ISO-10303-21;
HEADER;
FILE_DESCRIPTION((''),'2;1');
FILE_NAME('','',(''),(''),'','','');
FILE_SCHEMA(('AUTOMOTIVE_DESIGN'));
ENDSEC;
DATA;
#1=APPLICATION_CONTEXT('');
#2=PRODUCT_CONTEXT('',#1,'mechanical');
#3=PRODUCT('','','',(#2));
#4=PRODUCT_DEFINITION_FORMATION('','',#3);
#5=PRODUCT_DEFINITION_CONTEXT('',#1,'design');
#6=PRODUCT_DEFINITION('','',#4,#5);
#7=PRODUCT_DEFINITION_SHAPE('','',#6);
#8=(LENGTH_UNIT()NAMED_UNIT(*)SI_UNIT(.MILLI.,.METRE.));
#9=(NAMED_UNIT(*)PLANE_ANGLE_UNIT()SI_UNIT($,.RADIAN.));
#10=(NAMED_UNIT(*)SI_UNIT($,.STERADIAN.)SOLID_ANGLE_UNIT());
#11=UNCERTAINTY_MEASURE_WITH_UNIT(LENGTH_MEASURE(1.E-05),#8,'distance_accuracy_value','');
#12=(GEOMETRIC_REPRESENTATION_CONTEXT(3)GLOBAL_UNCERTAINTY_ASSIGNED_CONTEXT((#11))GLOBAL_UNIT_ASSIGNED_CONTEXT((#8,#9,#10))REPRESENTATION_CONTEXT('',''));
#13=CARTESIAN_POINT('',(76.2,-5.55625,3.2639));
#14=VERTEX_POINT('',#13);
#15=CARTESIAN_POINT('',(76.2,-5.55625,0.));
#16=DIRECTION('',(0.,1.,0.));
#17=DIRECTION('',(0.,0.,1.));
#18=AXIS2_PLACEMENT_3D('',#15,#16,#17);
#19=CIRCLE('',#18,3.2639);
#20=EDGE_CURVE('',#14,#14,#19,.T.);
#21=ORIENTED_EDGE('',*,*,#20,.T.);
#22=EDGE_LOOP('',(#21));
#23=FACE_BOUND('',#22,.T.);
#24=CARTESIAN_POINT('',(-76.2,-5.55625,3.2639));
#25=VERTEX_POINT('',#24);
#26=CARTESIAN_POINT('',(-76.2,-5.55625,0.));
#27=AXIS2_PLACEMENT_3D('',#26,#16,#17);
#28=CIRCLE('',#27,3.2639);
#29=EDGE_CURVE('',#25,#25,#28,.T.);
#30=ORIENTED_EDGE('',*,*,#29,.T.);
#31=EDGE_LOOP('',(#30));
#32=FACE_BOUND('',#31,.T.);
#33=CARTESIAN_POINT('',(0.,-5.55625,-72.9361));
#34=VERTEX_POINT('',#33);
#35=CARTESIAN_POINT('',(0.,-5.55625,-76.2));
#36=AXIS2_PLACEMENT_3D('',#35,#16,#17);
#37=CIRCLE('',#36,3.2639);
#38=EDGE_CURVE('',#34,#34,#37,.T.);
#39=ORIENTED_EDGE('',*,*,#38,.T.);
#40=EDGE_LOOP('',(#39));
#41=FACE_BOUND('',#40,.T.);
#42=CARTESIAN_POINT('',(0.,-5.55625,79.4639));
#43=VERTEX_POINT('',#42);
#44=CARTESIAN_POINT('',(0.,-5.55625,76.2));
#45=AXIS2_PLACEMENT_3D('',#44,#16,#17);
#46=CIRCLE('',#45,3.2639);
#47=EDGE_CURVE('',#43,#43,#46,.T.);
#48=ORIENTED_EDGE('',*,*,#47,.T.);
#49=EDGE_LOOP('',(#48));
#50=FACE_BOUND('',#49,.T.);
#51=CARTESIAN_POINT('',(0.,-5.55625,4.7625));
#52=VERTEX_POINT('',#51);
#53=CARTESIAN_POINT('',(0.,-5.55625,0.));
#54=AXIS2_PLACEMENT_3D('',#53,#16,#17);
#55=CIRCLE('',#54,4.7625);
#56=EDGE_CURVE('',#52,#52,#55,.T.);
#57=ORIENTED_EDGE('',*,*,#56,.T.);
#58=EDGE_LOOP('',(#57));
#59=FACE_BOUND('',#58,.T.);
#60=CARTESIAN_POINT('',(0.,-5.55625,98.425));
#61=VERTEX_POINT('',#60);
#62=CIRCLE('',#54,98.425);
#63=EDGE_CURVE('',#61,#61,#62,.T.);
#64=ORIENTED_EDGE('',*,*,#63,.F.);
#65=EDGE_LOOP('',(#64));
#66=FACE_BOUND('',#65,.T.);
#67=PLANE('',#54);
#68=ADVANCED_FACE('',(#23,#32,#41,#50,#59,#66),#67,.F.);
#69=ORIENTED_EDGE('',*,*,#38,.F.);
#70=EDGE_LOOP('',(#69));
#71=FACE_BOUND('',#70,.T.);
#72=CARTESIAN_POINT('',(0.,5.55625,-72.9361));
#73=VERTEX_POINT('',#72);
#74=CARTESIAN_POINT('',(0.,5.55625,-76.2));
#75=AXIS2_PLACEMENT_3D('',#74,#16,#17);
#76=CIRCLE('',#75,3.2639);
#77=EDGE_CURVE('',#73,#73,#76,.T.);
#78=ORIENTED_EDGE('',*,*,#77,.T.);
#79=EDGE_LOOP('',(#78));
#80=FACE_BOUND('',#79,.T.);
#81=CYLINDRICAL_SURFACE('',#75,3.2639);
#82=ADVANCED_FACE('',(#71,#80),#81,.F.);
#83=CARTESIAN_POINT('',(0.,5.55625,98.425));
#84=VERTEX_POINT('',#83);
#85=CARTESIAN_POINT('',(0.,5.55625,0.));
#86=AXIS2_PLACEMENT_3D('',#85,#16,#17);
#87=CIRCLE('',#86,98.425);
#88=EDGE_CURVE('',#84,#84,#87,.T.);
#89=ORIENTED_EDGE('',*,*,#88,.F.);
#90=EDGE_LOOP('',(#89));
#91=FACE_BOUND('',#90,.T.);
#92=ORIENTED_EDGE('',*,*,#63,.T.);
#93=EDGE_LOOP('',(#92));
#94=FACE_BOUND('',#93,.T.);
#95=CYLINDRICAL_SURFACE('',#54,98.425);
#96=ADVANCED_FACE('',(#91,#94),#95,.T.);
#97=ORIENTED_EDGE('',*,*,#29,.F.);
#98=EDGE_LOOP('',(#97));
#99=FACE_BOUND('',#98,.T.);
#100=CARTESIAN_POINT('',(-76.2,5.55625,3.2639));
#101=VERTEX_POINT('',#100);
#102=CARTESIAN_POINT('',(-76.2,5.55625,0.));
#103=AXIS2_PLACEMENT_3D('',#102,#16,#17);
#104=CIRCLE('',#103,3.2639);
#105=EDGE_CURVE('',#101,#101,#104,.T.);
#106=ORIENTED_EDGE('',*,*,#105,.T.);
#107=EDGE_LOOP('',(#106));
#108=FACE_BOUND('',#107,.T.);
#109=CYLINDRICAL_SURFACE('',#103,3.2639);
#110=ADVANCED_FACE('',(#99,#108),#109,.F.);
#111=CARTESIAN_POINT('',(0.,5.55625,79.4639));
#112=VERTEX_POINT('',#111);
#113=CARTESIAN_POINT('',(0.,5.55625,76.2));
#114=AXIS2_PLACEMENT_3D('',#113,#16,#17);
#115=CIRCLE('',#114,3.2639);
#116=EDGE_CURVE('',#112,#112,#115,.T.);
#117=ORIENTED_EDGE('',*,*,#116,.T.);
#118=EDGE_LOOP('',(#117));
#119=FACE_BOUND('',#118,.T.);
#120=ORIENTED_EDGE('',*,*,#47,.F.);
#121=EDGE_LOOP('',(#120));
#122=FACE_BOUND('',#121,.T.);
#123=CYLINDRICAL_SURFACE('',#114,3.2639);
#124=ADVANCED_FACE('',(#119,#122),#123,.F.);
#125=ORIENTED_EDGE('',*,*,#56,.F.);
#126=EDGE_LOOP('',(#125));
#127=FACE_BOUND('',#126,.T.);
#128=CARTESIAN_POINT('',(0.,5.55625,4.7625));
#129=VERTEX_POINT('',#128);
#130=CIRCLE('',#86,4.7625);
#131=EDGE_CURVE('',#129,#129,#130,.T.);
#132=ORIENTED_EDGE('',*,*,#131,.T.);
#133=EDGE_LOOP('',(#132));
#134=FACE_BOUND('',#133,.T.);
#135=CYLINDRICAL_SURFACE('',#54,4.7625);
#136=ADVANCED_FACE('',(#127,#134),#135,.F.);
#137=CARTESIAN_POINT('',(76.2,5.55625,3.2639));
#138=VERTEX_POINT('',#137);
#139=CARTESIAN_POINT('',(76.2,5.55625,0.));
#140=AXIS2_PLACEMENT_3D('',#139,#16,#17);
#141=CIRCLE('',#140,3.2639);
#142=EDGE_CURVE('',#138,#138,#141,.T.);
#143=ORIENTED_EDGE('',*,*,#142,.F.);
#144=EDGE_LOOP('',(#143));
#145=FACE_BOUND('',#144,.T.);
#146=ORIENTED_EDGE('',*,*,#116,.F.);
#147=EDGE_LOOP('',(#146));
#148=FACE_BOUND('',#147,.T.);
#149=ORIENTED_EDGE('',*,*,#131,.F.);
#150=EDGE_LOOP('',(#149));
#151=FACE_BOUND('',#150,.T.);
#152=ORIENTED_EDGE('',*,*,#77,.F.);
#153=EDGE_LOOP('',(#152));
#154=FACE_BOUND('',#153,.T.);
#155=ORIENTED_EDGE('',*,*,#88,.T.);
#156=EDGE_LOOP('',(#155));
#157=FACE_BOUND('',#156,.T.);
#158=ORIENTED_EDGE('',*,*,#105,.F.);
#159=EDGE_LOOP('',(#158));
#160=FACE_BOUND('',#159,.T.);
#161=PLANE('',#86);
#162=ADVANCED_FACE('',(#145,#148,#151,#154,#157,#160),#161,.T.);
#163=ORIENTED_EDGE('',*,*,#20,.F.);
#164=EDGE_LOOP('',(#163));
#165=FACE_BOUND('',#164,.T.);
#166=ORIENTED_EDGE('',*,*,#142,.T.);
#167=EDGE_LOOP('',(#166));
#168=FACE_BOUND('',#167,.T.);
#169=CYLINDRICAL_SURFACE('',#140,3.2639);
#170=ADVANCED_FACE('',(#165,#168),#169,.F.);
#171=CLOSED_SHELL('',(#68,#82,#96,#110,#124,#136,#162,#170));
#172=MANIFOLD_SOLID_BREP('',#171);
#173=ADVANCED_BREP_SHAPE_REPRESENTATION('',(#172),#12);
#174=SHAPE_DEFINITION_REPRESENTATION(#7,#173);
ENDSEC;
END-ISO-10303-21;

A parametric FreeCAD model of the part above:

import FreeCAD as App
import Part
import Sketcher
Q = App.Units.Quantity

doc = App.newDocument("Part")
body = doc.addObject("PartDesign::Body", "Body")

sketch1 = body.newObject("Sketcher::SketchObject", "Sketch")
sketch1.AttachmentSupport = (doc.getObject("XZ_Plane"), [""])
sketch1.MapMode = "FlatFace"
sketch1.addGeometry([
    Part.Circle(App.Vector(0, 0, 0), App.Vector(0, 0, 1), 98.425),
    Part.Circle(App.Vector(0, 0, 0), App.Vector(0, 0, 1), 4.7625),
], False)
sketch1.addConstraint([
    Sketcher.Constraint("Coincident", 0, 3, -1, 1),
    Sketcher.Constraint("Coincident", 1, 3, -1, 1),
    Sketcher.Constraint("Diameter", 0, Q("7.75 in")),
    Sketcher.Constraint("Diameter", 1, Q("0.375 in")),
])
pad1 = body.newObject("PartDesign::Pad", "Pad")
pad1.Profile = sketch1
pad1.Type = "TwoLengths"
pad1.Length = Q("0.21875 in")
pad1.Length2 = Q("0.21875 in")
pad1.Reversed = True

sketch2 = body.newObject("Sketcher::SketchObject", "Sketch001")
sketch2.AttachmentSupport = (doc.getObject("YZ_Plane"), [""])
sketch2.MapMode = "FlatFace"
sketch2.addGeometry([
    Part.LineSegment(App.Vector(-9.104899, 76.2, 0), App.Vector(5.55625, 76.2, 0)),
    Part.LineSegment(App.Vector(5.55625, 76.2, 0), App.Vector(5.55625, 79.4639, 0)),
    Part.LineSegment(App.Vector(5.55625, 79.4639, 0), App.Vector(-7.14375, 79.4639, 0)),
    Part.LineSegment(App.Vector(-7.14375, 79.4639, 0), App.Vector(-9.104899, 76.2, 0)),
], False)
sketch2.addGeometry(Part.LineSegment(App.Vector(5.55625, 76.2, 0), App.Vector(-9.104899, 76.2, 0)), True)
sketch2.addConstraint([
    Sketcher.Constraint("Coincident", 0, 2, 1, 1),
    Sketcher.Constraint("Coincident", 1, 2, 2, 1),
    Sketcher.Constraint("Coincident", 2, 2, 3, 1),
    Sketcher.Constraint("Coincident", 3, 2, 0, 1),
    Sketcher.Constraint("Horizontal", 0),
    Sketcher.Constraint("Vertical", 1),
    Sketcher.Constraint("Horizontal", 2),
    Sketcher.Constraint("Horizontal", 4),
    Sketcher.Constraint("Coincident", 4, 1, 0, 2),
    Sketcher.Constraint("Equal", 0, 4),
    Sketcher.Constraint("DistanceX", 2, 2, 2, 1, Q("0.5 in")),
    Sketcher.Constraint("DistanceY", -1, 1, 0, 2, Q("3 in")),
    Sketcher.Constraint("Angle", 3, Q("-121 deg")),
    Sketcher.Constraint("DistanceY", 1, 1, 1, 2, Q("0.1285 in")),
    Sketcher.Constraint("DistanceX", -1, 1, 0, 2, Q("0.21875 in")),
])
groove = body.newObject("PartDesign::Groove", "Groove")
groove.Profile = sketch2
groove.ReferenceAxis = (sketch2, ["Axis0"])
groove.Angle = 360
doc.recompute()

polarpattern = body.newObject("PartDesign::PolarPattern", "PolarPattern")
polarpattern.Originals = [groove]
polarpattern.Axis = (doc.getObject("Y_Axis"), [""])
polarpattern.Angle = 360
polarpattern.Occurrences = 4
body.Tip = polarpattern

doc.recompute()
